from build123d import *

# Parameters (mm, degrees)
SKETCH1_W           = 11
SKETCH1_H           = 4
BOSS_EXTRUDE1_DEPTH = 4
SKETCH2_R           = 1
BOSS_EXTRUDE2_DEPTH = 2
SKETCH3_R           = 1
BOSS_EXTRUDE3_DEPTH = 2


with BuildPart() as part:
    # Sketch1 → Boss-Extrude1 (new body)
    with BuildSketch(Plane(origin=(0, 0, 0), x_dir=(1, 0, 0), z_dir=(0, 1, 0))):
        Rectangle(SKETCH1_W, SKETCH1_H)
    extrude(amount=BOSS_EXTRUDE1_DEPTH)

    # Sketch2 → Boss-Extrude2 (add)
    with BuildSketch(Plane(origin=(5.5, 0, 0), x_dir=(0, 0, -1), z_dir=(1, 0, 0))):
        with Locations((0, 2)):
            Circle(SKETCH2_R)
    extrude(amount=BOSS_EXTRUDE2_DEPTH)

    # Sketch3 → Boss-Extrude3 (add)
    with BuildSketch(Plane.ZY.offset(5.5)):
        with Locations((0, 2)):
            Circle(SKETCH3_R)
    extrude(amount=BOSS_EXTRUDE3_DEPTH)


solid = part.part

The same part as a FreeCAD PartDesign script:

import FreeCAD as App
import Part
import Sketcher
Q = App.Units.Quantity

doc = App.newDocument("Part")
body = doc.addObject("PartDesign::Body", "Body")

# Sketch on XZ plane
sketch1 = body.newObject("Sketcher::SketchObject", "Sketch")
sketch1.AttachmentSupport = (doc.getObject("XZ_Plane"), [""])
sketch1.MapMode = "FlatFace"
sketch1.addGeometry([
    Part.LineSegment(App.Vector(-5.5, -2, 0), App.Vector(-5.5, 2, 0)),
    Part.LineSegment(App.Vector(-5.5, 2, 0), App.Vector(5.5, 2, 0)),
    Part.LineSegment(App.Vector(5.5, 2, 0), App.Vector(5.5, -2, 0)),
    Part.LineSegment(App.Vector(5.5, -2, 0), App.Vector(-5.5, -2, 0)),
], False)
sketch1.addConstraint([
    Sketcher.Constraint("Coincident", 0, 2, 1, 1),
    Sketcher.Constraint("Coincident", 1, 2, 2, 1),
    Sketcher.Constraint("Coincident", 2, 2, 3, 1),
    Sketcher.Constraint("Coincident", 3, 2, 0, 1),
    Sketcher.Constraint("Vertical", 0),
    Sketcher.Constraint("Horizontal", 1),
    Sketcher.Constraint("Vertical", 2),
    Sketcher.Constraint("Horizontal", 3),
    Sketcher.Constraint("Symmetric", 0, 2, 2, 2, -1, 1),
    Sketcher.Constraint("DistanceX", 1, 1, 1, 2, Q("11 mm")),
    Sketcher.Constraint("DistanceY", 0, 1, 0, 2, Q("4 mm")),
])
pad1 = body.newObject("PartDesign::Pad", "Pad")
pad1.Profile = sketch1
pad1.Length = 4
pad1.Reversed = True

# Sketch on YZ plane
sketch2 = body.newObject("Sketcher::SketchObject", "Sketch001")
sketch2.AttachmentSupport = (doc.getObject("YZ_Plane"), [""])
sketch2.MapMode = "FlatFace"
sketch2.AttachmentOffset = App.Placement(App.Vector(0, 0, 5.5), App.Rotation())
sketch2.addGeometry(Part.Circle(App.Vector(2, 0, 0), App.Vector(0, 0, 1), 1), False)
sketch2.addConstraint([
    Sketcher.Constraint("PointOnObject", 0, 3, -1),
    Sketcher.Constraint("Diameter", 0, Q("2 mm")),
    Sketcher.Constraint("DistanceX", -1, 1, 0, 3, Q("2 mm")),
])
pad2 = body.newObject("PartDesign::Pad", "Pad001")
pad2.Profile = sketch2
pad2.Length = 2

# Sketch on YZ plane
sketch3 = body.newObject("Sketcher::SketchObject", "Sketch002")
sketch3.AttachmentSupport = (doc.getObject("YZ_Plane"), [""])
sketch3.MapMode = "FlatFace"
sketch3.AttachmentOffset = App.Placement(App.Vector(0, 0, -5.5), App.Rotation())
sketch3.addGeometry(Part.Circle(App.Vector(2, 0, 0), App.Vector(0, 0, 1), 1), False)
sketch3.addConstraint([
    Sketcher.Constraint("PointOnObject", 0, 3, -1),
    Sketcher.Constraint("Diameter", 0, Q("2 mm")),
    Sketcher.Constraint("DistanceX", -1, 1, 0, 3, Q("2 mm")),
])
pad3 = body.newObject("PartDesign::Pad", "Pad002")
pad3.Profile = sketch3
pad3.Length = 2
pad3.Reversed = True

doc.recompute()
